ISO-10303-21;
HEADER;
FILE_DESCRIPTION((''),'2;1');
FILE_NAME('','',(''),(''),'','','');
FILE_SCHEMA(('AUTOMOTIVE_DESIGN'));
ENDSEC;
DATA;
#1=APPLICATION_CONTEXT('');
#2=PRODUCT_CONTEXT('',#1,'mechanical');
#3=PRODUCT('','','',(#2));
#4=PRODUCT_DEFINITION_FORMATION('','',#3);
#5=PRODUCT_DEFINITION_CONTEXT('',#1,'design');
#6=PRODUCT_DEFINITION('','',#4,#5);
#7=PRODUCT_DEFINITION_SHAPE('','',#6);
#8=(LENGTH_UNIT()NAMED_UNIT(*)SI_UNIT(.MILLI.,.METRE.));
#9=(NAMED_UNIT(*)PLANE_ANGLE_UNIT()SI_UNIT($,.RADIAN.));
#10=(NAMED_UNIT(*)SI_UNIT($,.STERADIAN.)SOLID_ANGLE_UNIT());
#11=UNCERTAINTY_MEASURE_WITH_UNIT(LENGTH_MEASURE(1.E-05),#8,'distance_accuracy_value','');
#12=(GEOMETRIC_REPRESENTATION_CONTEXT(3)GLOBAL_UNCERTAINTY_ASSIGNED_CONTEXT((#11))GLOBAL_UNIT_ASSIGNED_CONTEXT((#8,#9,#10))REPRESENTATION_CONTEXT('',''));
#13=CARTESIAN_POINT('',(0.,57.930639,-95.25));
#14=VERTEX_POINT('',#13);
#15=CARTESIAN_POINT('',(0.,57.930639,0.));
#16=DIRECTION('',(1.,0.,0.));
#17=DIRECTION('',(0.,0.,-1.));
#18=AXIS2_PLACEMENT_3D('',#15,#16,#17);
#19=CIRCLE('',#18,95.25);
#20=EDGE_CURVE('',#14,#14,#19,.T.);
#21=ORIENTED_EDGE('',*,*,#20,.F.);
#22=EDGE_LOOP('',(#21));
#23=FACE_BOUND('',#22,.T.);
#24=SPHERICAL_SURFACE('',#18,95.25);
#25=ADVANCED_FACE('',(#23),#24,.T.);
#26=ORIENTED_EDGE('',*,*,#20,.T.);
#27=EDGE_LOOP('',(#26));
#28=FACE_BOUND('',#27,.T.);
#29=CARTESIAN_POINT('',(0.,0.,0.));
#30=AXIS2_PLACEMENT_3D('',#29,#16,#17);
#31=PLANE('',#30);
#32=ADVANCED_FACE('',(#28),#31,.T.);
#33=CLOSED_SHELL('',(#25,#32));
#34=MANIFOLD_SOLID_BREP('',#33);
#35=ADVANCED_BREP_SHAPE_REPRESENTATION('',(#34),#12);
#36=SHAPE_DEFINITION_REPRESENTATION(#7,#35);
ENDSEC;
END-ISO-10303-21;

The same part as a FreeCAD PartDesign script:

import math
import FreeCAD as App
import Part
import Sketcher
Q = App.Units.Quantity

doc = App.newDocument("Part")
body = doc.addObject("PartDesign::Body", "Body")

# Sketch on XY plane
sketch1 = body.newObject("Sketcher::SketchObject", "Sketch")
sketch1.AttachmentSupport = (doc.getObject("XY_Plane"), [""])
sketch1.MapMode = "FlatFace"
sketch1.addGeometry([
    Part.LineSegment(App.Vector(0, 153.180639, 0), App.Vector(0, -37.319361, 0)),
    Part.ArcOfCircle(Part.Circle(App.Vector(0, 57.930639, 0), App.Vector(0, 0, 1), 95.25), math.radians(-90), math.radians(90)),
], False)
sketch1.addConstraint([
    Sketcher.Constraint("Coincident", 0, 1, 1, 2),
    Sketcher.Constraint("Coincident", 1, 1, 0, 2),
    Sketcher.Constraint("Vertical", 0),
    Sketcher.Constraint("PointOnObject", 1, 3, -2),
    Sketcher.Constraint("PointOnObject", 0, 1, -2),
    Sketcher.Constraint("Radius", 1, Q("3.75 in")),
    Sketcher.Constraint("DistanceY", -1, 1, 1, 3, Q("57.930639 mm")),
])
revolution = body.newObject("PartDesign::Revolution", "Revolution")
revolution.Profile = sketch1
revolution.ReferenceAxis = (sketch1, ["V_Axis"])
revolution.Angle = 360

# Sketch on YZ plane
sketch2 = body.newObject("Sketcher::SketchObject", "Sketch001")
sketch2.AttachmentSupport = (doc.getObject("YZ_Plane"), [""])
sketch2.MapMode = "FlatFace"
sketch2.addGeometry([
    Part.LineSegment(App.Vector(164.025669, 147.66005, 0), App.Vector(-164.025669, 147.66005, 0)),
    Part.LineSegment(App.Vector(-164.025669, 147.66005, 0), App.Vector(-164.025669, -147.66005, 0)),
    Part.LineSegment(App.Vector(-164.025669, -147.66005, 0), App.Vector(164.025669, -147.66005, 0)),
    Part.LineSegment(App.Vector(164.025669, -147.66005, 0), App.Vector(164.025669, 147.66005, 0)),
], False)
sketch2.addConstraint([
    Sketcher.Constraint("Coincident", 0, 2, 1, 1),
    Sketcher.Constraint("Coincident", 1, 2, 2, 1),
    Sketcher.Constraint("Coincident", 2, 2, 3, 1),
    Sketcher.Constraint("Coincident", 3, 2, 0, 1),
    Sketcher.Constraint("Horizontal", 0),
    Sketcher.Constraint("Vertical", 1),
    Sketcher.Constraint("Horizontal", 2),
    Sketcher.Constraint("Vertical", 3),
    Sketcher.Constraint("Symmetric", 0, 2, 2, 2, -1, 1),
    Sketcher.Constraint("DistanceY", 1, 2, 1, 1, Q("295.3201 mm")),
    Sketcher.Constraint("DistanceX", 0, 2, 0, 1, Q("328.051338 mm")),
])
pocket1 = body.newObject("PartDesign::Pocket", "Pocket")
pocket1.Profile = sketch2
pocket1.Length = Q("3.75 in")
pocket1.Reversed = True

doc.recompute()
